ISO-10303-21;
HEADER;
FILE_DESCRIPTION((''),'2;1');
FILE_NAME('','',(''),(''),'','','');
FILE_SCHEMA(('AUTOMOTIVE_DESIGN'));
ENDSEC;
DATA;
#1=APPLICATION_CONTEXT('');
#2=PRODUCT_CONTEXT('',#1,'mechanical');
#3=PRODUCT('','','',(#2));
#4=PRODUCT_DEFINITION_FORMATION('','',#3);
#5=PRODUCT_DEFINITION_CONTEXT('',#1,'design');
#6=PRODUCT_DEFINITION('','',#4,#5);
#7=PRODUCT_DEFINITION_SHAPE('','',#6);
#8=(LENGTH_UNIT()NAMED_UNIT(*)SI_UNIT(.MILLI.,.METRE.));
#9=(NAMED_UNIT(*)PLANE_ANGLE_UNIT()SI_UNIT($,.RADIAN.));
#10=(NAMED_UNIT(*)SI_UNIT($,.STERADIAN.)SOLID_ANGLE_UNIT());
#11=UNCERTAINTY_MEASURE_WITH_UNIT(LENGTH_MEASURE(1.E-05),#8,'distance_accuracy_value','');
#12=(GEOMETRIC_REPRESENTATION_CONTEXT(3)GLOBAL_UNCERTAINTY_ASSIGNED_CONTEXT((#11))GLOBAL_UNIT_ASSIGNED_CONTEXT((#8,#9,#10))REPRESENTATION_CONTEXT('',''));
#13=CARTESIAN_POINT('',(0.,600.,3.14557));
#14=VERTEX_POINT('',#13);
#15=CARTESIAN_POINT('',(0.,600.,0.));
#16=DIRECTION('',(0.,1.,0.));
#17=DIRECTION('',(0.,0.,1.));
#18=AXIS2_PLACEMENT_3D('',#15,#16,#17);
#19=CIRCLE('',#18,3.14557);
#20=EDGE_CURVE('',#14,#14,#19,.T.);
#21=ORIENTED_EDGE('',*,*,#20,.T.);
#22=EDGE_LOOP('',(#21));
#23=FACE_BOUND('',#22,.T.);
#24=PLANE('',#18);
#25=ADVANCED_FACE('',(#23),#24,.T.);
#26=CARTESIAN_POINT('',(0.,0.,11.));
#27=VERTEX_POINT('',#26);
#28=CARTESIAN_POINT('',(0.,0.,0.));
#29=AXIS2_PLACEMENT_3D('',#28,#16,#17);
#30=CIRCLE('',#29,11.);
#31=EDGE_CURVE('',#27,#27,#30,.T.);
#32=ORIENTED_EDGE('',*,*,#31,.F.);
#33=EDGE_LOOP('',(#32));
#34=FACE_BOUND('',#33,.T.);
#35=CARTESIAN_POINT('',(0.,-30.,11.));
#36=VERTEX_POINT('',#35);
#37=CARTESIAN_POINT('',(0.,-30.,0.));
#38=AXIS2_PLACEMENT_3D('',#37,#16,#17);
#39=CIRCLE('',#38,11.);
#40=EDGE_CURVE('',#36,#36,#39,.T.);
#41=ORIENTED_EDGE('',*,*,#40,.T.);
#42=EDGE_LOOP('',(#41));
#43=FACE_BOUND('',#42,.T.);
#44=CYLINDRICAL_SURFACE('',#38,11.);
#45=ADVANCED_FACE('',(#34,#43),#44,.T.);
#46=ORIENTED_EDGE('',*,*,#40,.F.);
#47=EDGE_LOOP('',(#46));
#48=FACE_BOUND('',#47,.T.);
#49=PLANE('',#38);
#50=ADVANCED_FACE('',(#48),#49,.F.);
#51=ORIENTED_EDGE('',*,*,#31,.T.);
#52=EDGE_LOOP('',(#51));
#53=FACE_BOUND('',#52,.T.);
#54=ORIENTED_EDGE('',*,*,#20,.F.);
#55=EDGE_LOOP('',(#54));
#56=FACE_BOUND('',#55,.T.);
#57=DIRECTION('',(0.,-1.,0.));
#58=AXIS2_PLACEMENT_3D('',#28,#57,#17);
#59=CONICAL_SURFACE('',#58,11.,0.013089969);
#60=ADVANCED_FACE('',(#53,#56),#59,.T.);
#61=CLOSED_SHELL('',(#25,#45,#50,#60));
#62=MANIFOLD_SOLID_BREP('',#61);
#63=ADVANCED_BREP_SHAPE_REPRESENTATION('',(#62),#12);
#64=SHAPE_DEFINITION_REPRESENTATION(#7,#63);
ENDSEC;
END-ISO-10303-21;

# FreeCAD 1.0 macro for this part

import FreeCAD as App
import Part
import Sketcher
Q = App.Units.Quantity

doc = App.newDocument("Part")
body = doc.addObject("PartDesign::Body", "Body")

sketch1 = body.newObject("Sketcher::SketchObject", "Sketch")
sketch1.AttachmentSupport = (doc.getObject("XZ_Plane"), [""])
sketch1.MapMode = "FlatFace"
sketch1.addGeometry(Part.Circle(App.Vector(0, 0, 0), App.Vector(0, 0, 1), 11), False)
sketch1.addConstraint([
    Sketcher.Constraint("Coincident", 0, 3, -1, 1),
    Sketcher.Constraint("Diameter", 0, Q("22 mm")),
])
pad1 = body.newObject("PartDesign::Pad", "Pad")
pad1.Profile = sketch1
pad1.Length = 600
pad1.Reversed = True
pad1.TaperAngle = -0.75

sketch2 = body.newObject("Sketcher::SketchObject", "Sketch001")
sketch2.AttachmentSupport = (doc.getObject("XZ_Plane"), [""])
sketch2.MapMode = "FlatFace"
sketch2.addGeometry(Part.Circle(App.Vector(0, 0, 0), App.Vector(0, 0, 1), 11), False)
sketch2.addConstraint([
    Sketcher.Constraint("Coincident", 0, 3, -1, 1),
    Sketcher.Constraint("Diameter", 0, Q("22 mm")),
])
pad2 = body.newObject("PartDesign::Pad", "Pad001")
pad2.Profile = sketch2
pad2.Length = 30

doc.recompute()
